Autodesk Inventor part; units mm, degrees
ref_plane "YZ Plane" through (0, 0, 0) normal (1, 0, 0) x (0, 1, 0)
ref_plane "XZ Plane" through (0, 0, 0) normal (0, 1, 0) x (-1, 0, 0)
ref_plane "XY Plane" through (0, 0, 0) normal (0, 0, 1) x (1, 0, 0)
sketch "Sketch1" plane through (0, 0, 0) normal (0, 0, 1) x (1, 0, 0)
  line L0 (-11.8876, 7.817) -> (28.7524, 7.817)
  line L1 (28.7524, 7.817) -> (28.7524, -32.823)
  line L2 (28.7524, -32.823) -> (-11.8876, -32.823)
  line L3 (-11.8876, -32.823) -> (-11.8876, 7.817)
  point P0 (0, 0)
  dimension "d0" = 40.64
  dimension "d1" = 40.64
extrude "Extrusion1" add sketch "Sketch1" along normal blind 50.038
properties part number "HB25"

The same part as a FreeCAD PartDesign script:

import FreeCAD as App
import Part
import Sketcher

V = App.Vector
Q = App.Units.Quantity


def add_polygon(sketch, points):
    """Adds a closed chain of lines whose ends are joined by coincident constraints."""
    first, n = sketch.GeometryCount, len(points)
    for a, b in zip(points, points[1:] + points[:1]):
        sketch.addGeometry(Part.LineSegment(App.Vector(*a, 0), App.Vector(*b, 0)), False)
    for i in range(n):
        sketch.addConstraint(Sketcher.Constraint("Coincident", first + i, 2, first + (i + 1) % n, 1))

doc = App.newDocument("Part")
body = doc.addObject("PartDesign::Body", "Body")

# Sketch on XY plane
sketch1 = body.newObject("Sketcher::SketchObject", "Sketch")
sketch1.AttachmentSupport = (doc.getObject("XY_Plane"), [""])
sketch1.MapMode = "FlatFace"
add_polygon(sketch1, [(29, 8), (-12, 8), (-12, -33), (29, -33)])  # lines 0-3
sketch1.addConstraint([
    Sketcher.Constraint("Horizontal", 0),
    Sketcher.Constraint("Vertical", 1),
    Sketcher.Constraint("Horizontal", 2),
    Sketcher.Constraint("Vertical", 3),
    Sketcher.Constraint("Equal", 2, 1),
    Sketcher.Constraint("DistanceX", 0, 2, 0, 1, Q("1.6 in")),
    Sketcher.Constraint("DistanceX", 0, 2, -1, 1, 11.8876),
    Sketcher.Constraint("DistanceY", -1, 1, 0, 2, 7.817),
])
pad1 = body.newObject("PartDesign::Pad", "Pad")
pad1.Profile = sketch1
pad1.Length = Q("1.97 in")

doc.recompute()
